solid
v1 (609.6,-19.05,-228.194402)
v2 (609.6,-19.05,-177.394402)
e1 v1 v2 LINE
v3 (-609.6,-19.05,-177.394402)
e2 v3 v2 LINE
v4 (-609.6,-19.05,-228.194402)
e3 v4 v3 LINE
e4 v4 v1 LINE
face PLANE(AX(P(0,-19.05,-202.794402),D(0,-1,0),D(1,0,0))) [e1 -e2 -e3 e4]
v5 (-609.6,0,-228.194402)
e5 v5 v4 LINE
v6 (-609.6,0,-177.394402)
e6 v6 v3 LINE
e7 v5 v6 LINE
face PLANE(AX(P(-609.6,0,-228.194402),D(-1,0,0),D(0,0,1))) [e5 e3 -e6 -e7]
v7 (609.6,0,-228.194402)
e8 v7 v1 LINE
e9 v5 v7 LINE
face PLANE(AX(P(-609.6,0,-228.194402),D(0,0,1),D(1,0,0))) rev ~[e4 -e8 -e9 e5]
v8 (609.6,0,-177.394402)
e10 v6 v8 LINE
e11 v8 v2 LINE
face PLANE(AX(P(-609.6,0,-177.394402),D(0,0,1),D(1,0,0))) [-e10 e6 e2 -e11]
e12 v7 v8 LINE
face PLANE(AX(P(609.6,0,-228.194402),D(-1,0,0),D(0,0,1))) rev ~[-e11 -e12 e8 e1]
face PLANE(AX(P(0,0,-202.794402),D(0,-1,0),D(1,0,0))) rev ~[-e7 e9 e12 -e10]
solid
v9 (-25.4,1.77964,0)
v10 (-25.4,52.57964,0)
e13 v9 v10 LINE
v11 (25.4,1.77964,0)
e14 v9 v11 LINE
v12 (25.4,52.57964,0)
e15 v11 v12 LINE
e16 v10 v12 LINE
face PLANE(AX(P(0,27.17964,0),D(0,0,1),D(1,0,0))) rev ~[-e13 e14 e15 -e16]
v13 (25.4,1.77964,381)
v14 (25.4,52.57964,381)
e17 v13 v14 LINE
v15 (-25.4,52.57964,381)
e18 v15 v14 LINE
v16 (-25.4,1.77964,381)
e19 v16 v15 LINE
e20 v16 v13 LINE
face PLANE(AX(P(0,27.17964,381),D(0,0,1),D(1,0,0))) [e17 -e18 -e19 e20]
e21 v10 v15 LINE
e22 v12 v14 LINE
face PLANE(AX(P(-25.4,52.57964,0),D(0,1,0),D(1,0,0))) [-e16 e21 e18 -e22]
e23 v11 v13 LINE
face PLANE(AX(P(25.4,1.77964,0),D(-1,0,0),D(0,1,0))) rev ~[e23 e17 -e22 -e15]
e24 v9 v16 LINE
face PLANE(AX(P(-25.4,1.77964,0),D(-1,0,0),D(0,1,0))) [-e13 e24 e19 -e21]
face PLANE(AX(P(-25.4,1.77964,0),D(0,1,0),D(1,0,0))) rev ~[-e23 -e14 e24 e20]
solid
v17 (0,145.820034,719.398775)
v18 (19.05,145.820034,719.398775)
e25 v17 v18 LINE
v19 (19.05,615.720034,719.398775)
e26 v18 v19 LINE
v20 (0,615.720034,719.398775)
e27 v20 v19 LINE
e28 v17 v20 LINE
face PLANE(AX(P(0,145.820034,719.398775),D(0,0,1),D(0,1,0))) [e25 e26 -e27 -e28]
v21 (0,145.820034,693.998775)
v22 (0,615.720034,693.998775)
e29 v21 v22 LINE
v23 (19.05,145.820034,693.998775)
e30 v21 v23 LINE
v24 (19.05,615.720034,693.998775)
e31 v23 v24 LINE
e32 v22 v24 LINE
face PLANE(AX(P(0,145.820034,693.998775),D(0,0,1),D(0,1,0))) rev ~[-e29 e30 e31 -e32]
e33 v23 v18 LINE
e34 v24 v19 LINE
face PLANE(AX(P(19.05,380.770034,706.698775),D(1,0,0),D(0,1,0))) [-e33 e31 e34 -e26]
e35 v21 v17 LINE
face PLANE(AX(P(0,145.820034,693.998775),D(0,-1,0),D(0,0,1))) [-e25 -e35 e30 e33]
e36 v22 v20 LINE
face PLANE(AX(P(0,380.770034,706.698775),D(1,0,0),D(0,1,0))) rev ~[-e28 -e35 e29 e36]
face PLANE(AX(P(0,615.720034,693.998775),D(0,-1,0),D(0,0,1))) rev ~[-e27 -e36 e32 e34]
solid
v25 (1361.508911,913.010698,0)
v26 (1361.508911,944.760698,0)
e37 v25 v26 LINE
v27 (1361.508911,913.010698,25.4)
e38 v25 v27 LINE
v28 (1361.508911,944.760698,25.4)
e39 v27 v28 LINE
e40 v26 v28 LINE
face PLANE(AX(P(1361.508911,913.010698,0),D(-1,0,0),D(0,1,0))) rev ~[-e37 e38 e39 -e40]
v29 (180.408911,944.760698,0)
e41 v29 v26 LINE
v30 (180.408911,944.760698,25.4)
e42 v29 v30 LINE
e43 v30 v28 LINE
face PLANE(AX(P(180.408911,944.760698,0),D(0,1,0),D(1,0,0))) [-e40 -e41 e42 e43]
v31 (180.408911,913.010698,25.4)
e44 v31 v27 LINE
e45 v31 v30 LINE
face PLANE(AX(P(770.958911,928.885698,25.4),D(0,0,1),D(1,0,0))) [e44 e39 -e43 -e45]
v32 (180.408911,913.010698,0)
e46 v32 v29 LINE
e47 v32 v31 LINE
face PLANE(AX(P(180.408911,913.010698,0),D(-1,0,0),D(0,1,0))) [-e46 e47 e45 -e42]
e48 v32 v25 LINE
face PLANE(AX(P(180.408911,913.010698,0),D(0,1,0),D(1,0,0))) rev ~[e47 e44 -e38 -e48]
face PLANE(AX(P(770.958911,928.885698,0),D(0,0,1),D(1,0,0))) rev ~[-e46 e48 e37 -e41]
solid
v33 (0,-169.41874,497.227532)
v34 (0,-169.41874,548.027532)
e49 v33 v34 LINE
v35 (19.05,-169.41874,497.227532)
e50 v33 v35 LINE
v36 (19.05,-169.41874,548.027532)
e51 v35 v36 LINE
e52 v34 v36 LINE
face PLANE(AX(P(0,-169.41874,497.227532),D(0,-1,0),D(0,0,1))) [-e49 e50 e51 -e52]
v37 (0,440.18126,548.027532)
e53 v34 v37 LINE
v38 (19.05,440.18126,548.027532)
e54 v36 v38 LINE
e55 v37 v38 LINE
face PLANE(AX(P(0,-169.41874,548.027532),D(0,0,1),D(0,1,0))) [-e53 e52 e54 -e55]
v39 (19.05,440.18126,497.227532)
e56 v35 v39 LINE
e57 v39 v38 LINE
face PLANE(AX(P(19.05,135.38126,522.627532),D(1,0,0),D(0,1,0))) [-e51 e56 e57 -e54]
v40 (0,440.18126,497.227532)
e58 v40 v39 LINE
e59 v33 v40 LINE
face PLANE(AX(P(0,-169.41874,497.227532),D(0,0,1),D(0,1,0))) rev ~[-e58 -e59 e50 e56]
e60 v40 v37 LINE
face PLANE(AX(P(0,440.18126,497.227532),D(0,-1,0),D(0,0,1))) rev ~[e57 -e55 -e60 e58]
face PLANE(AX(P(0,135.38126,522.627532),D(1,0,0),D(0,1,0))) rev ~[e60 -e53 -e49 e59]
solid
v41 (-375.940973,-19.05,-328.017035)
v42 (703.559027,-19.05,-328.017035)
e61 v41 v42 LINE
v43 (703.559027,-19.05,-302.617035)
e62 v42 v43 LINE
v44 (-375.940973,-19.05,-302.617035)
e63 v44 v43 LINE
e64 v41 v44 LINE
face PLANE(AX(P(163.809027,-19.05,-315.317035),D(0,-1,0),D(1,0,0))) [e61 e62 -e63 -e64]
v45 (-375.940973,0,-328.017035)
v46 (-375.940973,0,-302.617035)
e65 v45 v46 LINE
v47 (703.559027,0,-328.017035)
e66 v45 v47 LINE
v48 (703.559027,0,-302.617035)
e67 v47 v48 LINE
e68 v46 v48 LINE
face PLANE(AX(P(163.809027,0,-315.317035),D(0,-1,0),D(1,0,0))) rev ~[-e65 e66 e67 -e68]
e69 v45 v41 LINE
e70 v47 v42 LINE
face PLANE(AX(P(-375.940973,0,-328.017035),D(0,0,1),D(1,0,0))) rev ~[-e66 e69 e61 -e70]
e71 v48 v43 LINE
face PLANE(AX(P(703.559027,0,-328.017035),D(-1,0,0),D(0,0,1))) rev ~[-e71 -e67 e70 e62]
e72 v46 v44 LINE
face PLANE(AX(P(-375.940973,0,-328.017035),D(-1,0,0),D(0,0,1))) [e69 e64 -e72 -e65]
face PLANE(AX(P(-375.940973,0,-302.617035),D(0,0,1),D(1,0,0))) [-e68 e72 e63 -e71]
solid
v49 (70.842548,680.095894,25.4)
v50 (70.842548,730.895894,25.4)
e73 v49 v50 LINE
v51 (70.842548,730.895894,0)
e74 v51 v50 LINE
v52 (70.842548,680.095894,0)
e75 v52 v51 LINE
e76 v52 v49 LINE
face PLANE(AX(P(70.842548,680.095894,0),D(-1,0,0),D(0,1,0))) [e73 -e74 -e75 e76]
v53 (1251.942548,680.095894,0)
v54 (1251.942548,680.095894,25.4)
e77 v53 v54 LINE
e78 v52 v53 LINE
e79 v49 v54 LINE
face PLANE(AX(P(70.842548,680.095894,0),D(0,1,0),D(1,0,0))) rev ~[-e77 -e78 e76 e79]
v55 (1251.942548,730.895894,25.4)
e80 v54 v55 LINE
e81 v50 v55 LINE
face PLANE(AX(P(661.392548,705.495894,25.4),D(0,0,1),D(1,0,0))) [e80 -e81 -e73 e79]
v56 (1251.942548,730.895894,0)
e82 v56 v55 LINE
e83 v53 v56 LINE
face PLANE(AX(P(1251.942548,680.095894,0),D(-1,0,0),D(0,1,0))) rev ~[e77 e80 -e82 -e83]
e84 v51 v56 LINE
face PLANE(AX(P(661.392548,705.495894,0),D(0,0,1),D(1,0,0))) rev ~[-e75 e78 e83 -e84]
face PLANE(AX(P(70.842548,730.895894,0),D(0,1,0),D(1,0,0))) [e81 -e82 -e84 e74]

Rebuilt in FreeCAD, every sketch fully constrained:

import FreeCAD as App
import Part
import Sketcher
Q = App.Units.Quantity


def add_polygon(sketch, points):
    """Adds a closed chain of lines whose ends are joined by coincident constraints."""
    first, n = sketch.GeometryCount, len(points)
    for a, b in zip(points, points[1:] + points[:1]):
        sketch.addGeometry(Part.LineSegment(App.Vector(*a, 0), App.Vector(*b, 0)), False)
    for i in range(n):
        sketch.addConstraint(Sketcher.Constraint("Coincident", first + i, 2, first + (i + 1) % n, 1))

doc = App.newDocument("Part")
body = doc.addObject("PartDesign::Body", "Body")

sketch1 = body.newObject("Sketcher::SketchObject", "Sketch")
sketch1.AttachmentSupport = (doc.getObject("XY_Plane"), [""])
sketch1.MapMode = "FlatFace"
add_polygon(sketch1, [(-25.4, 52.57964), (-25.4, 1.77964), (25.4, 1.77964), (25.4, 52.57964)])
sketch1.addConstraint([
    Sketcher.Constraint("Vertical", 0),
    Sketcher.Constraint("Horizontal", 1),
    Sketcher.Constraint("Vertical", 2),
    Sketcher.Constraint("Horizontal", 3),
    Sketcher.Constraint("Equal", 3, 0),
    Sketcher.Constraint("DistanceX", 1, 1, 1, 2, Q("2 in")),
    Sketcher.Constraint("DistanceX", 0, 2, -1, 1, Q("1 in")),
    Sketcher.Constraint("DistanceY", -1, 1, 0, 2, 1.77964),
])
pad1 = body.newObject("PartDesign::Pad", "Pad")
pad1.Profile = sketch1
pad1.Length = Q("15 in")
body2 = doc.addObject("PartDesign::Body", "Body001")

sketch2 = body2.newObject("Sketcher::SketchObject", "Sketch001")
sketch2.AttachmentSupport = (doc.getObject("XZ_Plane001"), [""])
sketch2.MapMode = "FlatFace"
add_polygon(sketch2, [(-609.6, -177.394402), (-609.6, -228.194402), (609.6, -228.194402), (609.6, -177.394402)])
sketch2.addConstraint([
    Sketcher.Constraint("Vertical", 0),
    Sketcher.Constraint("Horizontal", 1),
    Sketcher.Constraint("Vertical", 2),
    Sketcher.Constraint("Horizontal", 3),
    Sketcher.Constraint("DistanceX", 1, 1, 1, 2, Q("48 in")),
    Sketcher.Constraint("DistanceY", 0, 2, 0, 1, Q("2 in")),
    Sketcher.Constraint("DistanceX", 0, 2, -1, 1, Q("24 in")),
    Sketcher.Constraint("DistanceY", 0, 2, -1, 1, 228.194402),
])
pad2 = body2.newObject("PartDesign::Pad", "Pad001")
pad2.Profile = sketch2
pad2.Length = Q("0.75 in")
body3 = doc.addObject("PartDesign::Body", "Body002")

sketch3 = body3.newObject("Sketcher::SketchObject", "Sketch002")
sketch3.AttachmentSupport = (doc.getObject("YZ_Plane002"), [""])
sketch3.MapMode = "FlatFace"
add_polygon(sketch3, [(-169.41874, 548.027532), (-169.41874, 497.227532), (440.18126, 497.227532), (440.18126, 548.027532)])
sketch3.addConstraint([
    Sketcher.Constraint("Vertical", 0),
    Sketcher.Constraint("Horizontal", 1),
    Sketcher.Constraint("Vertical", 2),
    Sketcher.Constraint("Horizontal", 3),
    Sketcher.Constraint("DistanceX", 1, 1, 1, 2, Q("24 in")),
    Sketcher.Constraint("DistanceY", 0, 2, 0, 1, Q("2 in")),
    Sketcher.Constraint("DistanceX", 0, 2, -1, 1, 169.41874),
    Sketcher.Constraint("DistanceY", -1, 1, 0, 2, 497.227532),
])
pad3 = body3.newObject("PartDesign::Pad", "Pad002")
pad3.Profile = sketch3
pad3.Length = Q("0.75 in")
body4 = doc.addObject("PartDesign::Body", "Body003")

sketch4 = body4.newObject("Sketcher::SketchObject", "Sketch003")
sketch4.AttachmentSupport = (doc.getObject("YZ_Plane003"), [""])
sketch4.MapMode = "FlatFace"
add_polygon(sketch4, [(145.820034, 719.398775), (145.820034, 693.998775), (615.720034, 693.998775), (615.720034, 719.398775)])
sketch4.addConstraint([
    Sketcher.Constraint("Vertical", 0),
    Sketcher.Constraint("Horizontal", 1),
    Sketcher.Constraint("Vertical", 2),
    Sketcher.Constraint("Horizontal", 3),
    Sketcher.Constraint("DistanceY", 0, 2, 0, 1, Q("1 in")),
    Sketcher.Constraint("DistanceX", 1, 1, 1, 2, Q("18.5 in")),
    Sketcher.Constraint("DistanceX", -1, 1, 0, 2, 145.820034),
    Sketcher.Constraint("DistanceY", -1, 1, 0, 2, 693.998775),
])
pad4 = body4.newObject("PartDesign::Pad", "Pad003")
pad4.Profile = sketch4
pad4.Length = Q("0.75 in")
body5 = doc.addObject("PartDesign::Body", "Body004")

sketch5 = body5.newObject("Sketcher::SketchObject", "Sketch004")
sketch5.AttachmentSupport = (doc.getObject("XZ_Plane004"), [""])
sketch5.MapMode = "FlatFace"
add_polygon(sketch5, [(-375.940973, -302.617035), (-375.940973, -328.017035), (703.559027, -328.017035), (703.559027, -302.617035)])
sketch5.addConstraint([
    Sketcher.Constraint("Vertical", 0),
    Sketcher.Constraint("Horizontal", 1),
    Sketcher.Constraint("Vertical", 2),
    Sketcher.Constraint("Horizontal", 3),
    Sketcher.Constraint("DistanceY", 0, 2, 0, 1, Q("1 in")),
    Sketcher.Constraint("DistanceX", 1, 1, 1, 2, Q("42.5 in")),
    Sketcher.Constraint("DistanceX", 0, 2, -1, 1, 375.940973),
    Sketcher.Constraint("DistanceY", 0, 2, -1, 1, 328.017035),
])
pad5 = body5.newObject("PartDesign::Pad", "Pad004")
pad5.Profile = sketch5
pad5.Length = Q("0.75 in")
body6 = doc.addObject("PartDesign::Body", "Body005")

sketch6 = body6.newObject("Sketcher::SketchObject", "Sketch005")
sketch6.AttachmentSupport = (doc.getObject("XY_Plane005"), [""])
sketch6.MapMode = "FlatFace"
add_polygon(sketch6, [(70.842548, 730.895894), (70.842548, 680.095894), (1251.942548, 680.095894), (1251.942548, 730.895894)])
sketch6.addConstraint([
    Sketcher.Constraint("Vertical", 0),
    Sketcher.Constraint("Horizontal", 1),
    Sketcher.Constraint("Vertical", 2),
    Sketcher.Constraint("Horizontal", 3),
    Sketcher.Constraint("DistanceY", 0, 2, 0, 1, Q("2 in")),
    Sketcher.Constraint("DistanceX", 1, 1, 1, 2, Q("46.5 in")),
    Sketcher.Constraint("DistanceX", -1, 1, 1, 2, 1251.942548),
    Sketcher.Constraint("DistanceY", -1, 1, 0, 2, 680.095894),
])
pad6 = body6.newObject("PartDesign::Pad", "Pad005")
pad6.Profile = sketch6
pad6.Length = Q("1 in")
body7 = doc.addObject("PartDesign::Body", "Body006")

sketch7 = body7.newObject("Sketcher::SketchObject", "Sketch006")
sketch7.AttachmentSupport = (doc.getObject("XY_Plane006"), [""])
sketch7.MapMode = "FlatFace"
add_polygon(sketch7, [(180.408911, 944.760698), (180.408911, 913.010698), (1361.508911, 913.010698), (1361.508911, 944.760698)])
sketch7.addConstraint([
    Sketcher.Constraint("Vertical", 0),
    Sketcher.Constraint("Horizontal", 1),
    Sketcher.Constraint("Vertical", 2),
    Sketcher.Constraint("Horizontal", 3),
    Sketcher.Constraint("DistanceX", 1, 1, 1, 2, Q("46.5 in")),
    Sketcher.Constraint("DistanceY", 0, 2, 0, 1, Q("1.25 in")),
    Sketcher.Constraint("DistanceY", -1, 1, 0, 2, 913.010698),
    Sketcher.Constraint("DistanceX", -1, 1, 0, 2, 180.408911),
])
pad7 = body7.newObject("PartDesign::Pad", "Pad006")
pad7.Profile = sketch7
pad7.Length = Q("1 in")

doc.recompute()
